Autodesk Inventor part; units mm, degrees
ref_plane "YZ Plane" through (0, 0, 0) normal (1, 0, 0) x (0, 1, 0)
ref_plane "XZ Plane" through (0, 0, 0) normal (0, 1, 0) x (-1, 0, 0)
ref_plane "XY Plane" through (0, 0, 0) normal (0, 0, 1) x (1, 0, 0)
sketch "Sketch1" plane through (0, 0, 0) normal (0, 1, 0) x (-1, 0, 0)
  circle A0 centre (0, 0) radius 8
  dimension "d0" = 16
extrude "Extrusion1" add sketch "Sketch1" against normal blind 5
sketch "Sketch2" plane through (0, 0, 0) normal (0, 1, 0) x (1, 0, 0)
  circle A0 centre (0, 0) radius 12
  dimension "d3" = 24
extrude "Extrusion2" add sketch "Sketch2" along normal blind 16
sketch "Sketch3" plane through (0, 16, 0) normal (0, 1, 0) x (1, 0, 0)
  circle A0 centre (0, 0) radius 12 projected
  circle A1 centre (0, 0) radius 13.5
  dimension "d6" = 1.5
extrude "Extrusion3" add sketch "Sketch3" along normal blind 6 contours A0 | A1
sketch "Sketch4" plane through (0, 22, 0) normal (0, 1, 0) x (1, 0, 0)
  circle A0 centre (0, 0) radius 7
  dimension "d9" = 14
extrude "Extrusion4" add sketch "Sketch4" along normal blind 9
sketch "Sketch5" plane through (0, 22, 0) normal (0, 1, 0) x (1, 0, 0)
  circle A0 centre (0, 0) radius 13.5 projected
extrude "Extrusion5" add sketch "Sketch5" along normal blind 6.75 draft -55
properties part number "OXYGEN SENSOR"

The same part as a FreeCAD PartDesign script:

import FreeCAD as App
import Part
import Sketcher
Q = App.Units.Quantity

doc = App.newDocument("Part")
body = doc.addObject("PartDesign::Body", "Body")

# Sketch on XZ plane
sketch1 = body.newObject("Sketcher::SketchObject", "Sketch")
sketch1.AttachmentSupport = (doc.getObject("XZ_Plane"), [""])
sketch1.MapMode = "FlatFace"
sketch1.addGeometry(Part.Circle(App.Vector(0, 0, 0), App.Vector(0, 0, 1), 8), False)
sketch1.addConstraint(Sketcher.Constraint("Coincident", 0, 3, -1, 1))
sketch1.addConstraint(Sketcher.Constraint("Diameter", 0, Q("16 mm")))
pad1 = body.newObject("PartDesign::Pad", "Pad")
pad1.Profile = sketch1
pad1.Length = 5

# Sketch on XZ plane
sketch2 = body.newObject("Sketcher::SketchObject", "Sketch001")
sketch2.AttachmentSupport = (doc.getObject("XZ_Plane"), [""])
sketch2.MapMode = "FlatFace"
sketch2.addGeometry(Part.Circle(App.Vector(0, 0, 0), App.Vector(0, 0, 1), 12), False)
sketch2.addConstraint(Sketcher.Constraint("Coincident", 0, 3, -1, 1))
sketch2.addConstraint(Sketcher.Constraint("Diameter", 0, Q("24 mm")))
pad2 = body.newObject("PartDesign::Pad", "Pad001")
pad2.Profile = sketch2
pad2.Length = 16
pad2.Reversed = True

# Sketch on XZ plane
sketch3 = body.newObject("Sketcher::SketchObject", "Sketch002")
sketch3.AttachmentSupport = (doc.getObject("XZ_Plane"), [""])
sketch3.MapMode = "FlatFace"
sketch3.AttachmentOffset = App.Placement(App.Vector(0, 0, -16), App.Rotation())
sketch3.addGeometry(Part.Circle(App.Vector(0, 0, 0), App.Vector(0, 0, 1), 14), False)
sketch3.addConstraint(Sketcher.Constraint("Coincident", 0, 3, -1, 1))
sketch3.addConstraint(Sketcher.Constraint("Diameter", 0, Q("27 mm")))
pad3 = body.newObject("PartDesign::Pad", "Pad002")
pad3.Profile = sketch3
pad3.Length = 6
pad3.Reversed = True

# Sketch on XZ plane
sketch4 = body.newObject("Sketcher::SketchObject", "Sketch003")
sketch4.AttachmentSupport = (doc.getObject("XZ_Plane"), [""])
sketch4.MapMode = "FlatFace"
sketch4.AttachmentOffset = App.Placement(App.Vector(0, 0, -22), App.Rotation())
sketch4.addGeometry(Part.Circle(App.Vector(0, 0, 0), App.Vector(0, 0, 1), 7), False)
sketch4.addConstraint(Sketcher.Constraint("Coincident", 0, 3, -1, 1))
sketch4.addConstraint(Sketcher.Constraint("Diameter", 0, Q("14 mm")))
pad4 = body.newObject("PartDesign::Pad", "Pad003")
pad4.Profile = sketch4
pad4.Length = 9
pad4.Reversed = True

# Sketch on XZ plane
sketch5 = body.newObject("Sketcher::SketchObject", "Sketch004")
sketch5.AttachmentSupport = (doc.getObject("XZ_Plane"), [""])
sketch5.MapMode = "FlatFace"
sketch5.AttachmentOffset = App.Placement(App.Vector(0, 0, -22), App.Rotation())
sketch5.addGeometry(Part.Circle(App.Vector(0, 0, 0), App.Vector(0, 0, 1), 14), False)
sketch5.addConstraint(Sketcher.Constraint("Coincident", 0, 3, -1, 1))
sketch5.addConstraint(Sketcher.Constraint("Diameter", 0, Q("27 mm")))
pad5 = body.newObject("PartDesign::Pad", "Pad004")
pad5.Profile = sketch5
pad5.Length = 6.75
pad5.Reversed = True
pad5.TaperAngle = -55

doc.recompute()
